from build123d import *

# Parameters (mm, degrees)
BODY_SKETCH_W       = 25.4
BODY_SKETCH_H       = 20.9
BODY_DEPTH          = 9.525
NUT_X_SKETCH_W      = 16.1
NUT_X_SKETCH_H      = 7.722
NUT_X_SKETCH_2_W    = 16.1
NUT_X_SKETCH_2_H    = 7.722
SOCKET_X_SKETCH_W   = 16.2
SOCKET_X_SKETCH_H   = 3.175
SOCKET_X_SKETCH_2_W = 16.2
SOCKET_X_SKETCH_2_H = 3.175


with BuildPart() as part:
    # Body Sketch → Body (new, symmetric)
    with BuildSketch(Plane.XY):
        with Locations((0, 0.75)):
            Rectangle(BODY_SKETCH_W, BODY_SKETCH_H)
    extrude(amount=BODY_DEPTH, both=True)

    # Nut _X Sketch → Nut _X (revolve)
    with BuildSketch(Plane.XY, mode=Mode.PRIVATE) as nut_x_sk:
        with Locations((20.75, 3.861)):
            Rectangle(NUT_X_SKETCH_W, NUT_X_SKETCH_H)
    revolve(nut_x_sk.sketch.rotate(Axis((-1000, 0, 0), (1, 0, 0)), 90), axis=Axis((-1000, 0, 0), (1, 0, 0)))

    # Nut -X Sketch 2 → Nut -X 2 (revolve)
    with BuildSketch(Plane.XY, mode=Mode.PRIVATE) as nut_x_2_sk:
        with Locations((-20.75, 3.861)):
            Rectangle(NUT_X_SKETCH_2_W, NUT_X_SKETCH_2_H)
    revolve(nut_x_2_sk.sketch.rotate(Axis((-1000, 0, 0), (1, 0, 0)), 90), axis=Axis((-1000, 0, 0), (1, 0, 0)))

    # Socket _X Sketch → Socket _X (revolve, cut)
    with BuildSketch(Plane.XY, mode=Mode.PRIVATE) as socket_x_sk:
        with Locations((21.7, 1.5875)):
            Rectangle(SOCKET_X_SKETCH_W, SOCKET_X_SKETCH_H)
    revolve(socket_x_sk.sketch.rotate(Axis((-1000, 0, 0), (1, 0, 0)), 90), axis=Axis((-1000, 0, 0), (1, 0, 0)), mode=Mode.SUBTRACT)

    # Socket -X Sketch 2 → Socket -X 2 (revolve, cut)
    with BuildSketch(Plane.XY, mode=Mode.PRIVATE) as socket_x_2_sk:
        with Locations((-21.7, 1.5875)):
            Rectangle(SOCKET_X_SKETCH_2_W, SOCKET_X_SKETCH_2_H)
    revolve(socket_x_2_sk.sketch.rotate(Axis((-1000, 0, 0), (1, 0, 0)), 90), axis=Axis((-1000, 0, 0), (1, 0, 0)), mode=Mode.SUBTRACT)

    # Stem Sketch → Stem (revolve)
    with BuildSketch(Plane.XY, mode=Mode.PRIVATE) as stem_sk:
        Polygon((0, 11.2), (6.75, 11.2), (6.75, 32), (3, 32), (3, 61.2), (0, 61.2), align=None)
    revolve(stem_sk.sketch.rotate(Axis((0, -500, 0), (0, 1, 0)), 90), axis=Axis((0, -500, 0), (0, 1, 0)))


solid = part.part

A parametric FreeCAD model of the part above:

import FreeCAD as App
import Part
import Sketcher
from FreeCAD import Vector
Q = App.Units.Quantity

doc = App.newDocument("Part")
body = doc.addObject("PartDesign::Body", "Body")

sketch1 = body.newObject("Sketcher::SketchObject", "Sketch")
sketch1.AttachmentSupport = (doc.getObject("XY_Plane"), [""])
sketch1.MapMode = "FlatFace"
sketch1.addGeometry([
    Part.LineSegment(Vector(-13, 11, 0), Vector(-13, -10, 0)),
    Part.LineSegment(Vector(-13, -10, 0), Vector(13, -10, 0)),
    Part.LineSegment(Vector(13, -10, 0), Vector(13, 11, 0)),
    Part.LineSegment(Vector(13, 11, 0), Vector(-13, 11, 0)),
], False)
sketch1.addConstraint([
    Sketcher.Constraint("Coincident", 0, 2, 1, 1),
    Sketcher.Constraint("Coincident", 1, 2, 2, 1),
    Sketcher.Constraint("Coincident", 2, 2, 3, 1),
    Sketcher.Constraint("Coincident", 3, 2, 0, 1),
    Sketcher.Constraint("Vertical", 0),
    Sketcher.Constraint("Horizontal", 1),
    Sketcher.Constraint("Vertical", 2),
    Sketcher.Constraint("Horizontal", 3),
    Sketcher.Constraint("DistanceX", 1, 1, 1, 2, Q("25.4 mm")),
    Sketcher.Constraint("DistanceY", 0, 2, 0, 1, Q("20.9 mm")),
    Sketcher.Constraint("DistanceX", 0, 2, -1, 1, Q("12.7 mm")),
    Sketcher.Constraint("DistanceY", 0, 2, -1, 1, Q("9.7 mm")),
])
pad1 = body.newObject("PartDesign::Pad", "Pad")
pad1.Profile = sketch1
pad1.Length = 19.05
pad1.Midplane = True

sketch2 = body.newObject("Sketcher::SketchObject", "Sketch001")
sketch2.AttachmentSupport = (doc.getObject("XY_Plane"), [""])
sketch2.MapMode = "FlatFace"
sketch2.addGeometry([
    Part.LineSegment(Vector(13, 8, 0), Vector(13, 0, 0)),
    Part.LineSegment(Vector(13, 0, 0), Vector(29, 0, 0)),
    Part.LineSegment(Vector(29, 0, 0), Vector(29, 8, 0)),
    Part.LineSegment(Vector(29, 8, 0), Vector(13, 8, 0)),
], False)
sketch2.addConstraint([
    Sketcher.Constraint("Coincident", 0, 2, 1, 1),
    Sketcher.Constraint("Coincident", 1, 2, 2, 1),
    Sketcher.Constraint("Coincident", 2, 2, 3, 1),
    Sketcher.Constraint("Coincident", 3, 2, 0, 1),
    Sketcher.Constraint("Vertical", 0),
    Sketcher.Constraint("Horizontal", 1),
    Sketcher.Constraint("Vertical", 2),
    Sketcher.Constraint("Horizontal", 3),
    Sketcher.Constraint("PointOnObject", 0, 2, -1),
    Sketcher.Constraint("DistanceX", 1, 1, 1, 2, Q("16.1 mm")),
    Sketcher.Constraint("DistanceX", -1, 1, 0, 2, Q("12.7 mm")),
    Sketcher.Constraint("DistanceY", 0, 2, 0, 1, Q("7.722 mm")),
])
revolution = body.newObject("PartDesign::Revolution", "Revolution")
revolution.Profile = sketch2
revolution.ReferenceAxis = (sketch2, ["H_Axis"])
revolution.Angle = 360

sketch3 = body.newObject("Sketcher::SketchObject", "Sketch002")
sketch3.AttachmentSupport = (doc.getObject("XY_Plane"), [""])
sketch3.MapMode = "FlatFace"
sketch3.addGeometry([
    Part.LineSegment(Vector(-29, 8, 0), Vector(-29, 0, 0)),
    Part.LineSegment(Vector(-29, 0, 0), Vector(-13, 0, 0)),
    Part.LineSegment(Vector(-13, 0, 0), Vector(-13, 8, 0)),
    Part.LineSegment(Vector(-13, 8, 0), Vector(-29, 8, 0)),
], False)
sketch3.addConstraint([
    Sketcher.Constraint("Coincident", 0, 2, 1, 1),
    Sketcher.Constraint("Coincident", 1, 2, 2, 1),
    Sketcher.Constraint("Coincident", 2, 2, 3, 1),
    Sketcher.Constraint("Coincident", 3, 2, 0, 1),
    Sketcher.Constraint("Vertical", 0),
    Sketcher.Constraint("Horizontal", 1),
    Sketcher.Constraint("Vertical", 2),
    Sketcher.Constraint("Horizontal", 3),
    Sketcher.Constraint("PointOnObject", 0, 2, -1),
    Sketcher.Constraint("DistanceX", 1, 1, 1, 2, Q("16.1 mm")),
    Sketcher.Constraint("DistanceX", 0, 2, -1, 1, Q("28.8 mm")),
    Sketcher.Constraint("DistanceY", 0, 2, 0, 1, Q("7.722 mm")),
])
revolution2 = body.newObject("PartDesign::Revolution", "Revolution001")
revolution2.Profile = sketch3
revolution2.ReferenceAxis = (sketch3, ["H_Axis"])
revolution2.Angle = 360

sketch4 = body.newObject("Sketcher::SketchObject", "Sketch003")
sketch4.AttachmentSupport = (doc.getObject("XY_Plane"), [""])
sketch4.MapMode = "FlatFace"
sketch4.addGeometry([
    Part.LineSegment(Vector(13.6, 3.2, 0), Vector(13.6, 0, 0)),
    Part.LineSegment(Vector(13.6, 0, 0), Vector(29.8, 0, 0)),
    Part.LineSegment(Vector(29.8, 0, 0), Vector(29.8, 3.2, 0)),
    Part.LineSegment(Vector(29.8, 3.2, 0), Vector(13.6, 3.2, 0)),
], False)
sketch4.addConstraint([
    Sketcher.Constraint("Coincident", 0, 2, 1, 1),
    Sketcher.Constraint("Coincident", 1, 2, 2, 1),
    Sketcher.Constraint("Coincident", 2, 2, 3, 1),
    Sketcher.Constraint("Coincident", 3, 2, 0, 1),
    Sketcher.Constraint("Vertical", 0),
    Sketcher.Constraint("Horizontal", 1),
    Sketcher.Constraint("Vertical", 2),
    Sketcher.Constraint("Horizontal", 3),
    Sketcher.Constraint("PointOnObject", 0, 2, -1),
    Sketcher.Constraint("DistanceX", 1, 1, 1, 2, Q("16.2 mm")),
    Sketcher.Constraint("DistanceX", -1, 1, 0, 2, Q("13.6 mm")),
    Sketcher.Constraint("DistanceY", 0, 2, 0, 1, Q("3.175 mm")),
])
groove = body.newObject("PartDesign::Groove", "Groove")
groove.Profile = sketch4
groove.ReferenceAxis = (sketch4, ["H_Axis"])
groove.Angle = 360

sketch5 = body.newObject("Sketcher::SketchObject", "Sketch004")
sketch5.AttachmentSupport = (doc.getObject("XY_Plane"), [""])
sketch5.MapMode = "FlatFace"
sketch5.addGeometry([
    Part.LineSegment(Vector(-29.8, 3.2, 0), Vector(-29.8, 0, 0)),
    Part.LineSegment(Vector(-29.8, 0, 0), Vector(-13.6, 0, 0)),
    Part.LineSegment(Vector(-13.6, 0, 0), Vector(-13.6, 3.2, 0)),
    Part.LineSegment(Vector(-13.6, 3.2, 0), Vector(-29.8, 3.2, 0)),
], False)
sketch5.addConstraint([
    Sketcher.Constraint("Coincident", 0, 2, 1, 1),
    Sketcher.Constraint("Coincident", 1, 2, 2, 1),
    Sketcher.Constraint("Coincident", 2, 2, 3, 1),
    Sketcher.Constraint("Coincident", 3, 2, 0, 1),
    Sketcher.Constraint("Vertical", 0),
    Sketcher.Constraint("Horizontal", 1),
    Sketcher.Constraint("Vertical", 2),
    Sketcher.Constraint("Horizontal", 3),
    Sketcher.Constraint("PointOnObject", 0, 2, -1),
    Sketcher.Constraint("DistanceX", 1, 1, 1, 2, Q("16.2 mm")),
    Sketcher.Constraint("DistanceX", 0, 2, -1, 1, Q("29.8 mm")),
    Sketcher.Constraint("DistanceY", 0, 2, 0, 1, Q("3.175 mm")),
])
groove2 = body.newObject("PartDesign::Groove", "Groove001")
groove2.Profile = sketch5
groove2.ReferenceAxis = (sketch5, ["H_Axis"])
groove2.Angle = 360

sketch6 = body.newObject("Sketcher::SketchObject", "Sketch005")
sketch6.AttachmentSupport = (doc.getObject("XY_Plane"), [""])
sketch6.MapMode = "FlatFace"
sketch6.addGeometry([
    Part.LineSegment(Vector(0, 11.2, 0), Vector(6.8, 11.2, 0)),
    Part.LineSegment(Vector(6.8, 11.2, 0), Vector(6.8, 32, 0)),
    Part.LineSegment(Vector(6.8, 32, 0), Vector(3, 32, 0)),
    Part.LineSegment(Vector(3, 32, 0), Vector(3, 61.2, 0)),
    Part.LineSegment(Vector(3, 61.2, 0), Vector(0, 61.2, 0)),
    Part.LineSegment(Vector(0, 61.2, 0), Vector(0, 11.2, 0)),
], False)
sketch6.addConstraint([
    Sketcher.Constraint("Coincident", 0, 2, 1, 1),
    Sketcher.Constraint("Coincident", 1, 2, 2, 1),
    Sketcher.Constraint("Coincident", 2, 2, 3, 1),
    Sketcher.Constraint("Coincident", 3, 2, 4, 1),
    Sketcher.Constraint("Coincident", 4, 2, 5, 1),
    Sketcher.Constraint("Coincident", 5, 2, 0, 1),
    Sketcher.Constraint("Horizontal", 0),
    Sketcher.Constraint("Vertical", 1),
    Sketcher.Constraint("Horizontal", 2),
    Sketcher.Constraint("Vertical", 3),
    Sketcher.Constraint("Horizontal", 4),
    Sketcher.Constraint("Vertical", 5),
    Sketcher.Constraint("PointOnObject", 4, 2, -2),
    Sketcher.Constraint("DistanceX", 4, 2, 4, 1, Q("3 mm")),
    Sketcher.Constraint("DistanceY", 5, 2, 5, 1, Q("50 mm")),
    Sketcher.Constraint("DistanceY", 1, 1, 1, 2, Q("20.8 mm")),
    Sketcher.Constraint("DistanceY", -1, 1, 1, 2, Q("32 mm")),
    Sketcher.Constraint("DistanceX", 0, 1, 0, 2, Q("6.75 mm")),
])
revolution3 = body.newObject("PartDesign::Revolution", "Revolution002")
revolution3.Profile = sketch6
revolution3.ReferenceAxis = (sketch6, ["V_Axis"])
revolution3.Angle = 360

doc.recompute()
